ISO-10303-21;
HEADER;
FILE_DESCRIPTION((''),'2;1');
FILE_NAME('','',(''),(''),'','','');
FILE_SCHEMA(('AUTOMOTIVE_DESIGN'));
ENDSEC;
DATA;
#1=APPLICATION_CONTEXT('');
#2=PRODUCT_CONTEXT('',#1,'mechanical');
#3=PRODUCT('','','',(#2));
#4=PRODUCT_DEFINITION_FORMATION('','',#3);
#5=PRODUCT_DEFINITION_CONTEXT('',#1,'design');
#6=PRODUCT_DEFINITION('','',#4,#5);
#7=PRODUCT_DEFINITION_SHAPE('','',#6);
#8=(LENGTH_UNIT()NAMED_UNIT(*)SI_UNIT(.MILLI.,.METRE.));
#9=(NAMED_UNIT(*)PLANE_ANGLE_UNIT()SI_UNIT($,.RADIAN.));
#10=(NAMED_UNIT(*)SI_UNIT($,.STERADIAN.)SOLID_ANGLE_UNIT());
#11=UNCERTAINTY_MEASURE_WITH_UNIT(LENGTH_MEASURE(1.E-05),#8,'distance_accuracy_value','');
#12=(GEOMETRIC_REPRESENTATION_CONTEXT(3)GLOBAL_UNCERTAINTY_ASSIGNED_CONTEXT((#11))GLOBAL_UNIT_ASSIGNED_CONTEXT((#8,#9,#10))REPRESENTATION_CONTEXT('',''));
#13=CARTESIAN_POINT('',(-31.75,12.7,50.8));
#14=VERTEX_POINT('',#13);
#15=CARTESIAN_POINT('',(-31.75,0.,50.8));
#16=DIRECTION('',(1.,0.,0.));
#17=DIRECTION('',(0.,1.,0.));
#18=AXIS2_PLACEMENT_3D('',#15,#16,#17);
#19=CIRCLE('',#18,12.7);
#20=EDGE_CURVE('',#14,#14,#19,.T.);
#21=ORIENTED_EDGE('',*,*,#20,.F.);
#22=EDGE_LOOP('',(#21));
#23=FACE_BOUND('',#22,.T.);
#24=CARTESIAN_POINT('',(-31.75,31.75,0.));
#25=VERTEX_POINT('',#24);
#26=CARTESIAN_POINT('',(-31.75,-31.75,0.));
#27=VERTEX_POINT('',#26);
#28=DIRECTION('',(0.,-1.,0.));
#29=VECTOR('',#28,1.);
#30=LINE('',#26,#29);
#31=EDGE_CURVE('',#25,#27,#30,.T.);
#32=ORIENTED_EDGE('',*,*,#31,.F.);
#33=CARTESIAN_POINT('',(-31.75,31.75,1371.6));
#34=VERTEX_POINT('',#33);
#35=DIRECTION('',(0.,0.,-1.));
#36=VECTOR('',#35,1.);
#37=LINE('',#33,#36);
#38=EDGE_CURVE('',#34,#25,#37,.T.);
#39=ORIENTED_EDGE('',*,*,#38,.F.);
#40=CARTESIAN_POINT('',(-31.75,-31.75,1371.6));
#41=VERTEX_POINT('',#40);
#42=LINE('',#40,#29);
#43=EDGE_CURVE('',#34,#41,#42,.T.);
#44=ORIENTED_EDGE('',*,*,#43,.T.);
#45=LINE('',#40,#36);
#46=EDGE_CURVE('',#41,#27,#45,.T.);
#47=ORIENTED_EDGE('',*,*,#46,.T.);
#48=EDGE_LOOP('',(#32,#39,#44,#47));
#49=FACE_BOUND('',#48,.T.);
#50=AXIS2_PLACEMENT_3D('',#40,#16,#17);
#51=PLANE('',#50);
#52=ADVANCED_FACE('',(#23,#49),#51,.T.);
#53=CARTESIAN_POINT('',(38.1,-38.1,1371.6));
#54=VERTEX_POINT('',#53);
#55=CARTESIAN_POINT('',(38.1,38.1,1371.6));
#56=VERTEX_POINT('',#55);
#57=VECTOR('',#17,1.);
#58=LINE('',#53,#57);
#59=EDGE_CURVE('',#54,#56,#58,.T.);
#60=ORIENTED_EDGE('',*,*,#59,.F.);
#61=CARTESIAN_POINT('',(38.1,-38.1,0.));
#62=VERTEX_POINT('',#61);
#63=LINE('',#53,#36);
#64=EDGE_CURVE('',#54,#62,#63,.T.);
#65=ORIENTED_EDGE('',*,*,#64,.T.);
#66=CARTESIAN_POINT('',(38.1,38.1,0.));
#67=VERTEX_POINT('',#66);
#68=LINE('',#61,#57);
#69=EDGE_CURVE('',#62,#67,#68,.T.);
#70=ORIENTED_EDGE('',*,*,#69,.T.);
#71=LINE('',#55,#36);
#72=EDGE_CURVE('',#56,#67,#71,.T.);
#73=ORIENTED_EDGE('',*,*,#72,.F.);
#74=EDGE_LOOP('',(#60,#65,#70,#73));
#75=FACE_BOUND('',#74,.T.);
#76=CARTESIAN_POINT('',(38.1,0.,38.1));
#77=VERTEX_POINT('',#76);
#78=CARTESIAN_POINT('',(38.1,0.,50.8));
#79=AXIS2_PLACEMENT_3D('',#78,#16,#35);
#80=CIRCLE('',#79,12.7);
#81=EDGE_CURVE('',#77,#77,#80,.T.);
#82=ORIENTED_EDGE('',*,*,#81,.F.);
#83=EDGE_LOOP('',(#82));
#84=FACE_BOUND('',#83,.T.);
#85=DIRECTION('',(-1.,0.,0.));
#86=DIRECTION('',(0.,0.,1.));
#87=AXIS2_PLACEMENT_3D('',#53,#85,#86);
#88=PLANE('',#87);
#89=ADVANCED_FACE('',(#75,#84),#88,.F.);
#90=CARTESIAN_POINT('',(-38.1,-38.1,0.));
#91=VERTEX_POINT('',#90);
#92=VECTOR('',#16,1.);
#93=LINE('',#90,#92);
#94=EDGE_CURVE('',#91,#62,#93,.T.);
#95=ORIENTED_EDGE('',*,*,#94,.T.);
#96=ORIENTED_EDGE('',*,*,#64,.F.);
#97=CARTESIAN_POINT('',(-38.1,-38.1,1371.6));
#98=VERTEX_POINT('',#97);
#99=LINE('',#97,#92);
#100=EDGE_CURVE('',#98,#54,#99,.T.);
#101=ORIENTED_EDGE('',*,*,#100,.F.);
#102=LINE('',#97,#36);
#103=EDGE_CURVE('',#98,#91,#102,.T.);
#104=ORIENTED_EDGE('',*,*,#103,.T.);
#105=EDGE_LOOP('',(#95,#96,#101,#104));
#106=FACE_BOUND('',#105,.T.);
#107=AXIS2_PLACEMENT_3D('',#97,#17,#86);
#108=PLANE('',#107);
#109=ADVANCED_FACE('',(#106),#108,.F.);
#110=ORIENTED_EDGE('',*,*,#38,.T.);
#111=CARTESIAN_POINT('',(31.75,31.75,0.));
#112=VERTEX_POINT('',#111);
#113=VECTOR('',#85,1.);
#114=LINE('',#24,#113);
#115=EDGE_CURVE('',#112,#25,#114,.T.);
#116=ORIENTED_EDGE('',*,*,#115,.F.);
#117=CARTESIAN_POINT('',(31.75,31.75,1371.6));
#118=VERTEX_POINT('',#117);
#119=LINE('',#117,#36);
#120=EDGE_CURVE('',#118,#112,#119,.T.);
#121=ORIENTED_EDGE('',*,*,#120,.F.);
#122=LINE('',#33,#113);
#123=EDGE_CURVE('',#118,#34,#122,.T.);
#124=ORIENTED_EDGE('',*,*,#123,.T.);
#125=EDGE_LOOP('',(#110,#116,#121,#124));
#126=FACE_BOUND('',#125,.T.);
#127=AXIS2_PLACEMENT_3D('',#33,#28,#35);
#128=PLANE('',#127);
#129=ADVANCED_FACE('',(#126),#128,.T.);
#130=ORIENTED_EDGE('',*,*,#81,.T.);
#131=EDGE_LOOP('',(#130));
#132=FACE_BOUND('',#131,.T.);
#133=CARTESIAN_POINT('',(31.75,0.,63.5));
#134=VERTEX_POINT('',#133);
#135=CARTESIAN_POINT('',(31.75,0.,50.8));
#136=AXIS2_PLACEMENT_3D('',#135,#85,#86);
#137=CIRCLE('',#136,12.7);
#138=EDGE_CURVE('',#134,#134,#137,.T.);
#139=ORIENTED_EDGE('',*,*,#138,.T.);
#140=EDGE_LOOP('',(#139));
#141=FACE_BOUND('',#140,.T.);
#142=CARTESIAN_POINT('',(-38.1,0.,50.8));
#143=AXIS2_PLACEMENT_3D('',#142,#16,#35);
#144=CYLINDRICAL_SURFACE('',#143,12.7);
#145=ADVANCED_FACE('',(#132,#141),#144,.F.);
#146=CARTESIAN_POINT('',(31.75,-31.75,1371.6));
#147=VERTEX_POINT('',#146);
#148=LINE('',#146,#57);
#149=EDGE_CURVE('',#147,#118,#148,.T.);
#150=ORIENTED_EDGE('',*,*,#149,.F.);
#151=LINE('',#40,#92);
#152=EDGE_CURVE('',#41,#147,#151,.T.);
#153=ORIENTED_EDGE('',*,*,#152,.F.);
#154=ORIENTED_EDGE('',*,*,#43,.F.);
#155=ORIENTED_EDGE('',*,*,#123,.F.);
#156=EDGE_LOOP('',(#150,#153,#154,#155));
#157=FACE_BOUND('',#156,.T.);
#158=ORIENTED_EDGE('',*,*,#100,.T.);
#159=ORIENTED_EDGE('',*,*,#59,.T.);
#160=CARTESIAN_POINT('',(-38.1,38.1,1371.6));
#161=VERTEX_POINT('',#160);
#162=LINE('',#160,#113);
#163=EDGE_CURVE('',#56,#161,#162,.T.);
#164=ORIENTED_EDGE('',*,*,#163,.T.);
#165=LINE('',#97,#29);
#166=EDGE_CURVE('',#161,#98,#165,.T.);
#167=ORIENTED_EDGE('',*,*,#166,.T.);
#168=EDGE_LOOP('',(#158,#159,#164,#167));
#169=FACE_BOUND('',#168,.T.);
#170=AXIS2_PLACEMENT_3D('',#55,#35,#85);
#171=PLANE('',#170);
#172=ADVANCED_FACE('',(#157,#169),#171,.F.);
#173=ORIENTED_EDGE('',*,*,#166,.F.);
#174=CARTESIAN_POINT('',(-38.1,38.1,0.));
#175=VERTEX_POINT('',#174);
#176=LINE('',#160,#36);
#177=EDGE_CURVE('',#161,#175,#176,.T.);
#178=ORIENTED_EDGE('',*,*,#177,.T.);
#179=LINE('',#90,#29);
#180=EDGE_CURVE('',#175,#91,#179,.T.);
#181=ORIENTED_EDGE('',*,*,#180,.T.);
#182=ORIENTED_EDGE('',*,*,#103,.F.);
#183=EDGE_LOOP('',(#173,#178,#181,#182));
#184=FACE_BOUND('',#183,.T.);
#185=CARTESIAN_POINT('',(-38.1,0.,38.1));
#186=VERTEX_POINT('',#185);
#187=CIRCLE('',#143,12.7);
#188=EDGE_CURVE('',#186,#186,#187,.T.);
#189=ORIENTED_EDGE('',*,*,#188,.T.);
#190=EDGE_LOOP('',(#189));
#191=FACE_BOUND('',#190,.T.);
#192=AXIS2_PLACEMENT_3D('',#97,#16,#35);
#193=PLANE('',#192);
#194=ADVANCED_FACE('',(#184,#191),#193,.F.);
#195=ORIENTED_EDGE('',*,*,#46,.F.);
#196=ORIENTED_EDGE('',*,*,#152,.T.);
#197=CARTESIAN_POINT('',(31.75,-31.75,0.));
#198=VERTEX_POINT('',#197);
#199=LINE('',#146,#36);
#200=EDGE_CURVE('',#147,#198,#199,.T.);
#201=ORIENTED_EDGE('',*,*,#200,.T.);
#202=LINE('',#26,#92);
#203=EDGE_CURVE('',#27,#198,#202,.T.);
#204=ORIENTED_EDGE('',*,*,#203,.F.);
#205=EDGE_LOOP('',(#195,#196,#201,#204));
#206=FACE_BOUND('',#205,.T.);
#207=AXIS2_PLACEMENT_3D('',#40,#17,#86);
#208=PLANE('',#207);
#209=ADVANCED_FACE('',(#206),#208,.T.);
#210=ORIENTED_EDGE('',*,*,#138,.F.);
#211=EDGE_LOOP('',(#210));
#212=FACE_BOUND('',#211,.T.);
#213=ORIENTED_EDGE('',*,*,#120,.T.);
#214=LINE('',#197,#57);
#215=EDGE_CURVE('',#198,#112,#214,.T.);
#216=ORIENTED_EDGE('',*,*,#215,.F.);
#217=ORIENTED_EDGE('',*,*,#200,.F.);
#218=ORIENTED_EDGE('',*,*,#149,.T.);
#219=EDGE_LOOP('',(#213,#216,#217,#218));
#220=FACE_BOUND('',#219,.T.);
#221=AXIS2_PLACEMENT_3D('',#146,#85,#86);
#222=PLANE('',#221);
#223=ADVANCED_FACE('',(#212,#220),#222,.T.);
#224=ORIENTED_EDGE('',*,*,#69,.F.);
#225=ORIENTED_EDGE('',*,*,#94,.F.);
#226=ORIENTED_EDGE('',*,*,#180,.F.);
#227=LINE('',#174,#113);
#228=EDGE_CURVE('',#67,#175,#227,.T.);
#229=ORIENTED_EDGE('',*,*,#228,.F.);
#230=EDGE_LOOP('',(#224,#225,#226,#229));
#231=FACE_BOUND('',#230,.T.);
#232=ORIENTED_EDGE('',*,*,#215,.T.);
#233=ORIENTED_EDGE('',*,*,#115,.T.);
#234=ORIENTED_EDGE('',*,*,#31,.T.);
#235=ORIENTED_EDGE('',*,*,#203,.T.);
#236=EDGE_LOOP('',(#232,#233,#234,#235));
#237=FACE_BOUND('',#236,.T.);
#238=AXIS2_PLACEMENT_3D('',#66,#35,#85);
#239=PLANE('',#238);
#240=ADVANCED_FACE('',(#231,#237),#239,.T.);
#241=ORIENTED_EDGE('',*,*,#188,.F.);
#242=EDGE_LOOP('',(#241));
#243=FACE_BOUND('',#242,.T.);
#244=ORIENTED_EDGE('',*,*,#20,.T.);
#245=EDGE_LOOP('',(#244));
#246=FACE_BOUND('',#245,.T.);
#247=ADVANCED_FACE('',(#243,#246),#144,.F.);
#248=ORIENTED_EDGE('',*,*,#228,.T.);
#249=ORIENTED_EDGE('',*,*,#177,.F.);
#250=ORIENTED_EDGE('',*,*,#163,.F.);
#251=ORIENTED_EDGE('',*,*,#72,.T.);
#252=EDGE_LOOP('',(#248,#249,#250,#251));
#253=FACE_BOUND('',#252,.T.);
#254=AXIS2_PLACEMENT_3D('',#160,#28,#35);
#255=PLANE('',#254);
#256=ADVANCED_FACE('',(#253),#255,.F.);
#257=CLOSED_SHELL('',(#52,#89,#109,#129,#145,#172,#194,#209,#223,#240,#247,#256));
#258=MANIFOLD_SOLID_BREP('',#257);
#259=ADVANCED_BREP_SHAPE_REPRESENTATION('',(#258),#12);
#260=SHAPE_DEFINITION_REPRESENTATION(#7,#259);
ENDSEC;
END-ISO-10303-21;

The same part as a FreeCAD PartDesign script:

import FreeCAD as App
import Part
import Sketcher
from FreeCAD import Vector
Q = App.Units.Quantity

doc = App.newDocument("Part")
body = doc.addObject("PartDesign::Body", "Body")

sketch1 = doc.addObject("Sketcher::SketchObject", "Sketch")
body.addObject(sketch1)
sketch1.AttachmentSupport = (doc.XY_Plane, [""])
sketch1.MapMode = "FlatFace"
sketch1.addGeometry(Part.LineSegment(Vector(-38.1, 38.1, 0), Vector(-38.1, -38.1, 0)), False)
sketch1.addGeometry(Part.LineSegment(Vector(-38.1, -38.1, 0), Vector(38.1, -38.1, 0)), False)
sketch1.addGeometry(Part.LineSegment(Vector(38.1, -38.1, 0), Vector(38.1, 38.1, 0)), False)
sketch1.addGeometry(Part.LineSegment(Vector(38.1, 38.1, 0), Vector(-38.1, 38.1, 0)), False)
sketch1.addGeometry(Part.LineSegment(Vector(31.75, -31.75, 0), Vector(-31.75, -31.75, 0)), False)
sketch1.addGeometry(Part.LineSegment(Vector(-31.75, -31.75, 0), Vector(-31.75, 31.75, 0)), False)
sketch1.addGeometry(Part.LineSegment(Vector(-31.75, 31.75, 0), Vector(31.75, 31.75, 0)), False)
sketch1.addGeometry(Part.LineSegment(Vector(31.75, 31.75, 0), Vector(31.75, -31.75, 0)), False)
sketch1.addConstraint(Sketcher.Constraint("Coincident", 0, 2, 1, 1))
sketch1.addConstraint(Sketcher.Constraint("Coincident", 1, 2, 2, 1))
sketch1.addConstraint(Sketcher.Constraint("Coincident", 2, 2, 3, 1))
sketch1.addConstraint(Sketcher.Constraint("Coincident", 3, 2, 0, 1))
sketch1.addConstraint(Sketcher.Constraint("Coincident", 4, 2, 5, 1))
sketch1.addConstraint(Sketcher.Constraint("Coincident", 5, 2, 6, 1))
sketch1.addConstraint(Sketcher.Constraint("Coincident", 6, 2, 7, 1))
sketch1.addConstraint(Sketcher.Constraint("Coincident", 7, 2, 4, 1))
sketch1.addConstraint(Sketcher.Constraint("Vertical", 0))
sketch1.addConstraint(Sketcher.Constraint("Horizontal", 1))
sketch1.addConstraint(Sketcher.Constraint("Vertical", 2))
sketch1.addConstraint(Sketcher.Constraint("Horizontal", 3))
sketch1.addConstraint(Sketcher.Constraint("Horizontal", 4))
sketch1.addConstraint(Sketcher.Constraint("Vertical", 5))
sketch1.addConstraint(Sketcher.Constraint("Horizontal", 6))
sketch1.addConstraint(Sketcher.Constraint("Vertical", 7))
sketch1.addConstraint(Sketcher.Constraint("Symmetric", 0, 2, 2, 2, -1, 1))
sketch1.addConstraint(Sketcher.Constraint("Symmetric", 4, 2, 6, 2, -1, 1))
sketch1.addConstraint(Sketcher.Constraint("Equal", 3, 0))
sketch1.addConstraint(Sketcher.Constraint("Equal", 6, 5))
sketch1.addConstraint(Sketcher.Constraint("DistanceX", 1, 1, 1, 2, Q("3 in")))
sketch1.addConstraint(Sketcher.Constraint("DistanceX", 4, 2, 4, 1, Q("2.5 in")))
pad1 = doc.addObject("PartDesign::Pad", "Pad")
body.addObject(pad1)
pad1.Profile = sketch1
pad1.Length = Q("54 in")

sketch2 = doc.addObject("Sketcher::SketchObject", "Sketch001")
body.addObject(sketch2)
sketch2.AttachmentSupport = (doc.YZ_Plane, [""])
sketch2.MapMode = "FlatFace"
sketch2.AttachmentOffset = App.Placement(Vector(0, 0, 1.5 * 25.4), App.Rotation())
sketch2.addGeometry(Part.Circle(Vector(0, 50.8, 0), Vector(0, 0, 1), 12.7), False)
sketch2.addConstraint(Sketcher.Constraint("PointOnObject", 0, 3, -2))
sketch2.addConstraint(Sketcher.Constraint("Diameter", 0, Q("1 in")))
sketch2.addConstraint(Sketcher.Constraint("DistanceY", -1, 1, 0, 3, Q("2 in")))
pocket1 = doc.addObject("PartDesign::Pocket", "Pocket")
body.addObject(pocket1)
pocket1.Profile = sketch2
pocket1.Type = "ThroughAll"

doc.recompute()
